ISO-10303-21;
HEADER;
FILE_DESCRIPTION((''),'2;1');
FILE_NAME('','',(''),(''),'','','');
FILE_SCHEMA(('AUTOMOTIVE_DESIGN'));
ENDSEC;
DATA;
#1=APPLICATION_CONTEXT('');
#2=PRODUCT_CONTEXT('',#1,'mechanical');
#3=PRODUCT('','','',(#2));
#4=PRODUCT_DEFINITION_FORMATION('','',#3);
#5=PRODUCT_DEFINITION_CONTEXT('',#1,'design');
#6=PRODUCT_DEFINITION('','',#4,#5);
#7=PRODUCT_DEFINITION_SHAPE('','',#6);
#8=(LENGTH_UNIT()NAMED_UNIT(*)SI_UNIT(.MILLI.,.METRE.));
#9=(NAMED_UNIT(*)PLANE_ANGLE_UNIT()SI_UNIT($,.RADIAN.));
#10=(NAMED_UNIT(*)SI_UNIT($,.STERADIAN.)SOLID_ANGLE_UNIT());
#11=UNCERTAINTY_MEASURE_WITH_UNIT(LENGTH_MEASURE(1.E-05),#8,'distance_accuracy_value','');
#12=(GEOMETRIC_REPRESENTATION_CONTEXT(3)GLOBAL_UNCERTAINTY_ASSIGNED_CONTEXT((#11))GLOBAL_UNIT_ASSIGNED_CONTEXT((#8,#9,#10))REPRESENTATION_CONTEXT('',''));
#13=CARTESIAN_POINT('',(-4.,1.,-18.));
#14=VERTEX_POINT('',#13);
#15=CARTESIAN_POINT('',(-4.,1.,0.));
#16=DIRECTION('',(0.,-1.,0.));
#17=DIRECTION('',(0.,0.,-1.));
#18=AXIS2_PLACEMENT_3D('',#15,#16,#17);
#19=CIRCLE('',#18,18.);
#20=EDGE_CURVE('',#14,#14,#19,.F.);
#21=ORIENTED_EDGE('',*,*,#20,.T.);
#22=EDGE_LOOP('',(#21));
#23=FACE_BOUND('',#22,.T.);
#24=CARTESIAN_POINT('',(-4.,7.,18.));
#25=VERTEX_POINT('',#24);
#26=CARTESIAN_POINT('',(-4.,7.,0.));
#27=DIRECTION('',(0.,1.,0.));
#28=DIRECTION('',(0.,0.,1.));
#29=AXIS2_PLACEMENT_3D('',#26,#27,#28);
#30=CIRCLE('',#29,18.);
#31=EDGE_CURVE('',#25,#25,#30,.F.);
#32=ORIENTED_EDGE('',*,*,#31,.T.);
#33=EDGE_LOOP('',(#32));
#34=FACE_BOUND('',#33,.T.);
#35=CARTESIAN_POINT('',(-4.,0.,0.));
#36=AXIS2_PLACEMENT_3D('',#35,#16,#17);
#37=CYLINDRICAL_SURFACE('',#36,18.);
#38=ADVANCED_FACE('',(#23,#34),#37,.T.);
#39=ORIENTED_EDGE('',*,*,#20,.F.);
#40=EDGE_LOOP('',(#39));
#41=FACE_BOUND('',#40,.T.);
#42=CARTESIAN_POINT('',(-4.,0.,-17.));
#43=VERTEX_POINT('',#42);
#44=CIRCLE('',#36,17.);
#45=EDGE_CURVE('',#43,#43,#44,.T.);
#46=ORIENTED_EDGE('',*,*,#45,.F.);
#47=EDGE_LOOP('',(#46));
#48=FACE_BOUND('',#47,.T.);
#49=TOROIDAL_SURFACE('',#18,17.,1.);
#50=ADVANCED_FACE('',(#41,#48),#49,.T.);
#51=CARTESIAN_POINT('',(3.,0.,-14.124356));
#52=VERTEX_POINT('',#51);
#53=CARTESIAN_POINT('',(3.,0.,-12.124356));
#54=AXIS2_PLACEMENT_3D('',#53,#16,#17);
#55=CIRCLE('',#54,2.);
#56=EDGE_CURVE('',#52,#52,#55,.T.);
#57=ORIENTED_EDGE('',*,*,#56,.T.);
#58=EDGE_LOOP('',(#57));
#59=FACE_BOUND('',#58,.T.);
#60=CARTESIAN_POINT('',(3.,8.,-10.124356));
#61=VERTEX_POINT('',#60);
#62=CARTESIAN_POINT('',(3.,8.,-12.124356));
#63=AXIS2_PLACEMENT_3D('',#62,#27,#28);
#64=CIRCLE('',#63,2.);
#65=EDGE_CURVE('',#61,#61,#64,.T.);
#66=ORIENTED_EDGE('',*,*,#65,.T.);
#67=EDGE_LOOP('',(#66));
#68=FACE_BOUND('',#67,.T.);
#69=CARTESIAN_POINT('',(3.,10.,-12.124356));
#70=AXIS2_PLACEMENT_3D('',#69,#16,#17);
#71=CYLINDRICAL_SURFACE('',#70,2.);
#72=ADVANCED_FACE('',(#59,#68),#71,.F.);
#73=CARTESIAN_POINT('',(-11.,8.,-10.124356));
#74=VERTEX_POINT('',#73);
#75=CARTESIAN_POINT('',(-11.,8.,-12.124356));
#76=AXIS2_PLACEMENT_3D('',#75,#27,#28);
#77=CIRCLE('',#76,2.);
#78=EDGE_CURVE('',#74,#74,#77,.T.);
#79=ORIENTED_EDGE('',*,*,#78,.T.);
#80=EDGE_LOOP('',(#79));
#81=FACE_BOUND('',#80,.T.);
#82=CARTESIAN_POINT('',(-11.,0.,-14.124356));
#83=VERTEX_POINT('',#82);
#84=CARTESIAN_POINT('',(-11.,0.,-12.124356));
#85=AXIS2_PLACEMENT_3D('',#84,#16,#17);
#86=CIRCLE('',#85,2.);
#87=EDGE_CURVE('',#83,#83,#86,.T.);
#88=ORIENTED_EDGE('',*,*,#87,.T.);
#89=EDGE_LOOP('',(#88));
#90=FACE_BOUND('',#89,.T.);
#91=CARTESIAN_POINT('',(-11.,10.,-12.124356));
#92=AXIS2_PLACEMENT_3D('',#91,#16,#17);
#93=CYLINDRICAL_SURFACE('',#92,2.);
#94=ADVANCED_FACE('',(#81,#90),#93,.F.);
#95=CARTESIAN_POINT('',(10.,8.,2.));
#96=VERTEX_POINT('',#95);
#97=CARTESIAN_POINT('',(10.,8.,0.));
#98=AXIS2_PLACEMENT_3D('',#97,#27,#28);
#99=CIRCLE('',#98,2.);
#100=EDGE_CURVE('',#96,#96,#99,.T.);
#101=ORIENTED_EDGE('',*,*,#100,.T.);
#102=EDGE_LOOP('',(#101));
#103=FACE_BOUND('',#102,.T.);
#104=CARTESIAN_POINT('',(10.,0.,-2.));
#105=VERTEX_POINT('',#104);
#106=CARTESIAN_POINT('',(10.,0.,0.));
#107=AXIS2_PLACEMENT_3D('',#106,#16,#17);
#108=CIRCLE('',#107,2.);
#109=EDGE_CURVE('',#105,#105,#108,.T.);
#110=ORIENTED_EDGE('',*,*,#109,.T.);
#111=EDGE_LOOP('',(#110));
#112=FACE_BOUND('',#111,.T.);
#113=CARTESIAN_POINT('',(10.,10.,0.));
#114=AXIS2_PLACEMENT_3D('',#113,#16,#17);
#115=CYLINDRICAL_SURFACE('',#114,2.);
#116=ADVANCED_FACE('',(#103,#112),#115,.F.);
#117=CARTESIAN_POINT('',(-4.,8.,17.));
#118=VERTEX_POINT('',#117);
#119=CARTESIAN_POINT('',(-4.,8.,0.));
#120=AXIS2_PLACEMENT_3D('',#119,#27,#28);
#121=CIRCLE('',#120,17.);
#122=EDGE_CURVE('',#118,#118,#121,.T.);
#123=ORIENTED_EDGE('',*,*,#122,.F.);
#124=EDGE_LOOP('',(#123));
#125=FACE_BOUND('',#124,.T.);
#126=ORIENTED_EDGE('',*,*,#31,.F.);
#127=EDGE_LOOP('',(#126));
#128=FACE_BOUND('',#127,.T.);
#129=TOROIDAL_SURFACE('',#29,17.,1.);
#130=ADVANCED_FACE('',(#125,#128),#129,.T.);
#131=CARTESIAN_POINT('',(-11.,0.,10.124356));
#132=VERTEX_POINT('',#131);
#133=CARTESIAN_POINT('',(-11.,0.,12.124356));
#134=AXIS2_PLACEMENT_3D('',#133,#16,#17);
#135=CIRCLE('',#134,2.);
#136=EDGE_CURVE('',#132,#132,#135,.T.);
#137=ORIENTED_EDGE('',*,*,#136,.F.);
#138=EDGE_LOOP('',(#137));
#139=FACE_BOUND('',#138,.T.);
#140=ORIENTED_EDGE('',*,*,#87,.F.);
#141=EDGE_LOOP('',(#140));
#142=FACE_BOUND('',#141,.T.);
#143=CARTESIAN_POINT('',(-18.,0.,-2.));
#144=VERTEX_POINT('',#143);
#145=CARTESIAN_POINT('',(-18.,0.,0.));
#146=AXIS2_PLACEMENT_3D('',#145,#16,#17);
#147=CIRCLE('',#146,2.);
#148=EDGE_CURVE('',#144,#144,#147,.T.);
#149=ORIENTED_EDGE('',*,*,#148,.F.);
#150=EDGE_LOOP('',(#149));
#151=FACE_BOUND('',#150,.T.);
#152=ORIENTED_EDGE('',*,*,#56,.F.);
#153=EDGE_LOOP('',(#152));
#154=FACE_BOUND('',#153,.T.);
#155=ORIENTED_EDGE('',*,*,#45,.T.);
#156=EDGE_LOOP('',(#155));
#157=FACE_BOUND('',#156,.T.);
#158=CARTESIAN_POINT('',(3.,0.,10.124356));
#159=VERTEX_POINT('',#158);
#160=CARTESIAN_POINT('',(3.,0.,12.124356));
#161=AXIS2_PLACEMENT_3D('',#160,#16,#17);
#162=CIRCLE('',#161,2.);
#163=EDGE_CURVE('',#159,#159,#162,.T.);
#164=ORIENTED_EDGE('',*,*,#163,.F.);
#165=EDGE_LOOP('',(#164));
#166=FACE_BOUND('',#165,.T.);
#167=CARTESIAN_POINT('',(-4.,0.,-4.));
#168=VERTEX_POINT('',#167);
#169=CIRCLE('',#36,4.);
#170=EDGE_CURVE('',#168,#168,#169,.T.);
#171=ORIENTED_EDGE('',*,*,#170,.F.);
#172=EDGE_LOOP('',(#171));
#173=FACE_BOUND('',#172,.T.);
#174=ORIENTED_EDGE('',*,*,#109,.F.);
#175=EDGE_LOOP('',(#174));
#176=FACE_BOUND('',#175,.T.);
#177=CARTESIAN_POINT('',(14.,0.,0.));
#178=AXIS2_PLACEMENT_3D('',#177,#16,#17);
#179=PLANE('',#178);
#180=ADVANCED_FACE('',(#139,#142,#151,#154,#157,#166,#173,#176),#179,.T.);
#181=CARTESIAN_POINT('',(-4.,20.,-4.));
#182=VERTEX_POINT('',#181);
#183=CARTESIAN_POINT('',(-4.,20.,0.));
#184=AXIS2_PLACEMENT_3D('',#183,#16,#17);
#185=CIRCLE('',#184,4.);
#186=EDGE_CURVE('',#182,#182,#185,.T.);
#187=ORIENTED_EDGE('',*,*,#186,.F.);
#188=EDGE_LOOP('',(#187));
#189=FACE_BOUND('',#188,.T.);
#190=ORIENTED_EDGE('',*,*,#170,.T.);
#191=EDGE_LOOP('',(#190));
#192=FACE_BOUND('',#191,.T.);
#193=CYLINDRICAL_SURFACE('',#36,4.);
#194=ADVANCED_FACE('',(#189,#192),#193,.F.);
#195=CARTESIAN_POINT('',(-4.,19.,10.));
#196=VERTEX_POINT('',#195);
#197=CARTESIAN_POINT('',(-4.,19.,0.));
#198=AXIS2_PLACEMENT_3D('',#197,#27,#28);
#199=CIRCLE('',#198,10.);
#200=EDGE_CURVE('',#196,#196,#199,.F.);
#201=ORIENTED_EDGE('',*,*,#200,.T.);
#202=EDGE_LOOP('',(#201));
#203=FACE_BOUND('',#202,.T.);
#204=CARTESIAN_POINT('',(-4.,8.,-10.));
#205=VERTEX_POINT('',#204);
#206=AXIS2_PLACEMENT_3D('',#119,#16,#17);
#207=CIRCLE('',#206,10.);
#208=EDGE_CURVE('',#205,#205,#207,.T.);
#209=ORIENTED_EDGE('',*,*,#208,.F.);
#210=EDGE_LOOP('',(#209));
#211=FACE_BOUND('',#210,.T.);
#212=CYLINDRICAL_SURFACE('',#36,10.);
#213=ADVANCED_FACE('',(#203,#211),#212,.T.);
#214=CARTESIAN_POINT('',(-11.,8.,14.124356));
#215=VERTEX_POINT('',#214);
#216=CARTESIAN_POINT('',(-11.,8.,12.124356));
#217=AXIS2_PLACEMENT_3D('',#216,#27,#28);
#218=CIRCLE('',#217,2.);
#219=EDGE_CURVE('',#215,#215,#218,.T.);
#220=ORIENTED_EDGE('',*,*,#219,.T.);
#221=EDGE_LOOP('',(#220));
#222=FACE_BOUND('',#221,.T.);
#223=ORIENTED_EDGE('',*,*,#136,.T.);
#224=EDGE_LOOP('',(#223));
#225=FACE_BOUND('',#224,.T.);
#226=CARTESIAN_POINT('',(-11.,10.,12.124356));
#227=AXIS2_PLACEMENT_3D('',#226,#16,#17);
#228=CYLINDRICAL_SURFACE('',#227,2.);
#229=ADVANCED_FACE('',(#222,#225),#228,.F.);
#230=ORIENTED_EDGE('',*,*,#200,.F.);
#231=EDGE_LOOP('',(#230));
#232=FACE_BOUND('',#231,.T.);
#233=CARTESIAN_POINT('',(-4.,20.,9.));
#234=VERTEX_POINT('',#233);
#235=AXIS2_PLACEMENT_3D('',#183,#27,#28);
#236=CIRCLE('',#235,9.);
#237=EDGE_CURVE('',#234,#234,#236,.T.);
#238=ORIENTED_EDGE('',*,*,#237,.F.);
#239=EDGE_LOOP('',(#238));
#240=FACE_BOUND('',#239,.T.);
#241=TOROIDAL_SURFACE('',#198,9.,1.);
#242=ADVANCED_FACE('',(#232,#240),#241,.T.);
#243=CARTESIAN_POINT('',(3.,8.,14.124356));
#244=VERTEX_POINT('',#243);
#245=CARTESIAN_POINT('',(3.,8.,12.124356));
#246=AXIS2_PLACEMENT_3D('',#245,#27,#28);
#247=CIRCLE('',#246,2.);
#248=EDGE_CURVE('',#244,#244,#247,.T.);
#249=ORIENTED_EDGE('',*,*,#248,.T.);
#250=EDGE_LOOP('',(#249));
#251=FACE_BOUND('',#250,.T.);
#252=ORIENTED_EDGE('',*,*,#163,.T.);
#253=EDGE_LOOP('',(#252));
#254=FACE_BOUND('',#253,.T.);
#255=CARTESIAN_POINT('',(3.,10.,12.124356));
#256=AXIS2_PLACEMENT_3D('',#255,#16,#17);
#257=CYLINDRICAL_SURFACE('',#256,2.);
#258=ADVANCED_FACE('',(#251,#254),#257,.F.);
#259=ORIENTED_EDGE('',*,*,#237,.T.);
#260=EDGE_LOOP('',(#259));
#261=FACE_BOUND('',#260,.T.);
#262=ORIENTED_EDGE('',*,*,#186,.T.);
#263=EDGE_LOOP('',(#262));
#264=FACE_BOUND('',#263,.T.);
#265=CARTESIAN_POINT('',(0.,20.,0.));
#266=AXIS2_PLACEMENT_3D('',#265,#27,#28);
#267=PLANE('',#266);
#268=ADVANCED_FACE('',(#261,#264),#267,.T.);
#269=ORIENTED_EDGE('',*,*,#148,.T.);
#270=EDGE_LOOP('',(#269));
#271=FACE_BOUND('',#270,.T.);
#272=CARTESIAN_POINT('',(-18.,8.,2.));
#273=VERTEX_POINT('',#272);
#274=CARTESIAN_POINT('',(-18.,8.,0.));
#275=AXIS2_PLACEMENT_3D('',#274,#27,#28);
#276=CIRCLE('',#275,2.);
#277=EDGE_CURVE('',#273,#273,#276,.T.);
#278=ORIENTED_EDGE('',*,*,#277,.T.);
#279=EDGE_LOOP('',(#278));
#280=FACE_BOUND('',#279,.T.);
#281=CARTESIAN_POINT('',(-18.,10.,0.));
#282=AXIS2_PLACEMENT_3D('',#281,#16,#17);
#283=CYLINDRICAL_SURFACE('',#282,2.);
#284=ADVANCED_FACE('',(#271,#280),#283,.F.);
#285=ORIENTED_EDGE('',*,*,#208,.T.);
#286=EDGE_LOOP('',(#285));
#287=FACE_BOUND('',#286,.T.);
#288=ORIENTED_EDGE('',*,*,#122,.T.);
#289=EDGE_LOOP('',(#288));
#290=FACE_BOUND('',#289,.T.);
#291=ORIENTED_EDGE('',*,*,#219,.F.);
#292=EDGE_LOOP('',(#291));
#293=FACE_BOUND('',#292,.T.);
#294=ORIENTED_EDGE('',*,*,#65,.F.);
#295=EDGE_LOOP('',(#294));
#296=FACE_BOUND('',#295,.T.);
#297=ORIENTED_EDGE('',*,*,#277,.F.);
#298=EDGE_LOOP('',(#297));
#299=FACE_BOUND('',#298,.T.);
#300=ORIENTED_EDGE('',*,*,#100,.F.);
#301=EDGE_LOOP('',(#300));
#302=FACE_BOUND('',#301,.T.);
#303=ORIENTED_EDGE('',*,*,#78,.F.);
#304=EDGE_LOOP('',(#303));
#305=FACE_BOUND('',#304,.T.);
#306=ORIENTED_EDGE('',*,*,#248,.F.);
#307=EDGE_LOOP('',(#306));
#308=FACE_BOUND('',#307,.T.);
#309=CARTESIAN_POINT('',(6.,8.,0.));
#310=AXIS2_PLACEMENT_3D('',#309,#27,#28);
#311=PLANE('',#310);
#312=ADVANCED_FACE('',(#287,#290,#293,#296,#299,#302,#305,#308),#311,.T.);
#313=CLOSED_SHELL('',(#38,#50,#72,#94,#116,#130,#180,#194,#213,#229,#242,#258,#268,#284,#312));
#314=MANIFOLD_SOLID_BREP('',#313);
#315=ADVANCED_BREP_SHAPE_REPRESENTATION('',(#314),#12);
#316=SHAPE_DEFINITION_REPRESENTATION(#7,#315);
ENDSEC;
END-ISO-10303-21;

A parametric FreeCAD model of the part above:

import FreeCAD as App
import Part
import Sketcher
from FreeCAD import Vector
Q = App.Units.Quantity


def edges_at(feature, points):
    """Names of the edges that pass closest to the given points."""
    edges = feature.Shape.Edges
    near = lambda p: min(range(len(edges)), key=lambda i: edges[i].distToShape(Part.Vertex(*p))[0])
    return sorted({f"Edge{near(p) + 1}" for p in points})


def add_polygon(sketch, points):
    """Adds a closed chain of lines whose ends are joined by coincident constraints."""
    first, n = sketch.GeometryCount, len(points)
    for a, b in zip(points, points[1:] + points[:1]):
        sketch.addGeometry(Part.LineSegment(App.Vector(*a, 0), App.Vector(*b, 0)), False)
    for i in range(n):
        sketch.addConstraint(Sketcher.Constraint("Coincident", first + i, 2, first + (i + 1) % n, 1))

doc = App.newDocument("Part")
body = doc.addObject("PartDesign::Body", "Body")

sketch1 = body.newObject("Sketcher::SketchObject", "Sketch")
sketch1.AttachmentSupport = (doc.getObject("XY_Plane"), [""])
sketch1.MapMode = "FlatFace"
add_polygon(sketch1, [(0, 20), (0, 0), (14, 0), (14, 8), (6, 8), (6, 20)])
sketch1.addGeometry(Part.LineSegment(Vector(-4, 0, 0), Vector(-4, 20, 0)), True)
sketch1.addConstraint([
    Sketcher.Constraint("Vertical", 0),
    Sketcher.Constraint("Horizontal", 1),
    Sketcher.Constraint("Vertical", 2),
    Sketcher.Constraint("Horizontal", 3),
    Sketcher.Constraint("Vertical", 4),
    Sketcher.Constraint("Horizontal", 5),
    Sketcher.Constraint("Vertical", 6),
    Sketcher.Constraint("Coincident", 0, 2, -1, 1),
    Sketcher.Constraint("PointOnObject", 6, 1, -1),
    Sketcher.Constraint("Horizontal", 5, 2, 6, 2),
    Sketcher.Constraint("Equal", 3, 2),
    Sketcher.Constraint("DistanceX", 1, 1, 1, 2, Q("14 mm")),
    Sketcher.Constraint("DistanceX", 3, 2, 3, 1, Q("8 mm")),
    Sketcher.Constraint("DistanceY", 0, 2, 0, 1, Q("20 mm")),
    Sketcher.Constraint("DistanceX", 6, 1, -1, 1, Q("4 mm")),
])
revolution = body.newObject("PartDesign::Revolution", "Revolution")
revolution.Profile = sketch1
revolution.ReferenceAxis = (sketch1, ["Axis0"])
revolution.Angle = 360
doc.recompute()

fillet = body.newObject("PartDesign::Fillet", "Fillet")
fillet.Base = (revolution, edges_at(revolution, [(-4, 0, 18), (-4, 8, 18), (-4, 20, 10)]))
fillet.Radius = 1

sketch2 = body.newObject("Sketcher::SketchObject", "Sketch001")
sketch2.AttachmentSupport = (doc.getObject("XZ_Plane"), [""])
sketch2.MapMode = "FlatFace"
sketch2.addGeometry([
    Part.Circle(Vector(-18, 0, 0), Vector(0, 0, 1), 2),
    Part.Circle(Vector(-11, 12.1, 0), Vector(0, 0, 1), 2),
    Part.Circle(Vector(3, 12.1, 0), Vector(0, 0, 1), 2),
    Part.Circle(Vector(10, 0, 0), Vector(0, 0, 1), 2),
    Part.Circle(Vector(3, -12.1, 0), Vector(0, 0, 1), 2),
    Part.Circle(Vector(-11, -12.1, 0), Vector(0, 0, 1), 2),
], False)
sketch2.addConstraint([
    Sketcher.Constraint("Equal", 0, 1),
    Sketcher.Constraint("Equal", 1, 2),
    Sketcher.Constraint("Equal", 2, 3),
    Sketcher.Constraint("Equal", 3, 4),
    Sketcher.Constraint("Equal", 4, 5),
    Sketcher.Constraint("Symmetric", 2, 3, 4, 3, -1),
    Sketcher.Constraint("Symmetric", 1, 3, 5, 3, -1),
    Sketcher.Constraint("PointOnObject", 0, 3, -1),
    Sketcher.Constraint("PointOnObject", 3, 3, -1),
    Sketcher.Constraint("Horizontal", 1, 3, 2, 3),
    Sketcher.Constraint("Diameter", 0, Q("4 mm")),
    Sketcher.Constraint("DistanceX", 0, 3, -1, 1, Q("18 mm")),
    Sketcher.Constraint("DistanceX", 1, 3, -1, 1, Q("11 mm")),
    Sketcher.Constraint("DistanceX", -1, 1, 2, 3, Q("3 mm")),
    Sketcher.Constraint("DistanceX", -1, 1, 3, 3, Q("10 mm")),
    Sketcher.Constraint("DistanceY", 4, 3, 2, 3, Q("24.248711 mm")),
])
pocket1 = body.newObject("PartDesign::Pocket", "Pocket")
pocket1.Profile = sketch2
pocket1.Length = 10

doc.recompute()
